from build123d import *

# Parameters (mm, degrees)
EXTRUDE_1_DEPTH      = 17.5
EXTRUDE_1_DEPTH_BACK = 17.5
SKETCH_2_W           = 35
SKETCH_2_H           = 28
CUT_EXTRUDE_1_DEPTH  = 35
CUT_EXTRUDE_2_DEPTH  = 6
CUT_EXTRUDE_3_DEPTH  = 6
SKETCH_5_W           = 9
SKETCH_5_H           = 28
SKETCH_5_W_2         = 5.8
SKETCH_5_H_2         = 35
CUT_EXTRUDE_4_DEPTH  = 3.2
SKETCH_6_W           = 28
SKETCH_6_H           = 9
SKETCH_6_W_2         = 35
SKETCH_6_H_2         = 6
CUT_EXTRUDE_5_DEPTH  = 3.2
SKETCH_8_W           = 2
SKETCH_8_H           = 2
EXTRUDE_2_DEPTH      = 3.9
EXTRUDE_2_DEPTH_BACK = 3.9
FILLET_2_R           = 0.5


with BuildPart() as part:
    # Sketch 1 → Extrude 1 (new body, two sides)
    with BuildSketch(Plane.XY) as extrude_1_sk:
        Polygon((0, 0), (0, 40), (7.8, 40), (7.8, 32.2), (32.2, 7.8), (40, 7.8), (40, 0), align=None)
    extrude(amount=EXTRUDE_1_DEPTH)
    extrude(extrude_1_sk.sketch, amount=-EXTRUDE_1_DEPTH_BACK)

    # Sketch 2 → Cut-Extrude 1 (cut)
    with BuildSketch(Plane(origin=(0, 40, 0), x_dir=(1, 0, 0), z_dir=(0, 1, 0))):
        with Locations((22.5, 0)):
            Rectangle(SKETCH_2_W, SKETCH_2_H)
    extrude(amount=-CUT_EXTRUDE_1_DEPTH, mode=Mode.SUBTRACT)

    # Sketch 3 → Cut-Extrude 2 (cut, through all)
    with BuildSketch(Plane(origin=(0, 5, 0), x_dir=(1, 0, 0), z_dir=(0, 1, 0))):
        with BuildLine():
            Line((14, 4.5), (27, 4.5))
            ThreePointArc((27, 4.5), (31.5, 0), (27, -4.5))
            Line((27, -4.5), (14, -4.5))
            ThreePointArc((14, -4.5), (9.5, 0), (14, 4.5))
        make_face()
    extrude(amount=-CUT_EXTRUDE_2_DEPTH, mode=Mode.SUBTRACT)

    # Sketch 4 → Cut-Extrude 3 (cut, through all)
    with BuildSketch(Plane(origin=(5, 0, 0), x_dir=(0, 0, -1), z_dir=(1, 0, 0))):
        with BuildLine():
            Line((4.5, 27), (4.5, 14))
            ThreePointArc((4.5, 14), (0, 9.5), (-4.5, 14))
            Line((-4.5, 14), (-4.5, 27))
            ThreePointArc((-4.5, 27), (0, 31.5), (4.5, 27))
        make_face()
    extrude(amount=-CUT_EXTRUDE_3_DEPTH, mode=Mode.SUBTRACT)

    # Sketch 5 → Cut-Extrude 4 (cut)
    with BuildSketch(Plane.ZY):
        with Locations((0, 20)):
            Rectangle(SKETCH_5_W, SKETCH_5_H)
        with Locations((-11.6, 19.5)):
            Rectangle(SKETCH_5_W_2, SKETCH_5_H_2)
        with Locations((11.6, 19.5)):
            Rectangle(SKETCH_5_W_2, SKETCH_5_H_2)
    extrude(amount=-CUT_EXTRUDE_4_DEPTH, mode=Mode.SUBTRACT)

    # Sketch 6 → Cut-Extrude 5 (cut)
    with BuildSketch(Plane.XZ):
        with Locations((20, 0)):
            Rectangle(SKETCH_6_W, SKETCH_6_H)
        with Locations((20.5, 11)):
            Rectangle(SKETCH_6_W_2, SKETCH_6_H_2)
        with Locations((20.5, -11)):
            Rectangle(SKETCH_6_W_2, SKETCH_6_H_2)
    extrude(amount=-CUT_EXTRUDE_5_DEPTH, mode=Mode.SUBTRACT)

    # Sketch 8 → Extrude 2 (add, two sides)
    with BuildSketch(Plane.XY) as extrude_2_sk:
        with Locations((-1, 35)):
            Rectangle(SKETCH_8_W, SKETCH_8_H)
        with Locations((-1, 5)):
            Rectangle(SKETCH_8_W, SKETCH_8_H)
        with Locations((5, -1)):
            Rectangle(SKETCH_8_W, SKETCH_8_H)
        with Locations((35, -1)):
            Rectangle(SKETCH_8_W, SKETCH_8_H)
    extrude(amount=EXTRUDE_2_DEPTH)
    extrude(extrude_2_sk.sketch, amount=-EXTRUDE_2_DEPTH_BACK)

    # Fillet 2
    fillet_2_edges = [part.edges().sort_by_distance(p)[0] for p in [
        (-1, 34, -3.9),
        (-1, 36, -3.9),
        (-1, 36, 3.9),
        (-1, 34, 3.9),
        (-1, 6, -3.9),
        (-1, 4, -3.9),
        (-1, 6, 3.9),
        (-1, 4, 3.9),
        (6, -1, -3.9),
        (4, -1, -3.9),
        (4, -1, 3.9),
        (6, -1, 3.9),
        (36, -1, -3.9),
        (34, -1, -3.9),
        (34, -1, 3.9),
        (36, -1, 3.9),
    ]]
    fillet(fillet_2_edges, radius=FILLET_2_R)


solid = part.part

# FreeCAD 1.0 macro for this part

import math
import FreeCAD as App
import Part
import Sketcher
from FreeCAD import Vector


def edges_at(feature, points):
    """Names of the edges that pass closest to the given points."""
    edges = feature.Shape.Edges
    near = lambda p: min(range(len(edges)), key=lambda i: edges[i].distToShape(Part.Vertex(*p))[0])
    return sorted({f"Edge{near(p) + 1}" for p in points})


def add_polygon(sketch, points):
    """Adds a closed chain of lines whose ends are joined by coincident constraints."""
    first, n = sketch.GeometryCount, len(points)
    for a, b in zip(points, points[1:] + points[:1]):
        sketch.addGeometry(Part.LineSegment(App.Vector(*a, 0), App.Vector(*b, 0)), False)
    for i in range(n):
        sketch.addConstraint(Sketcher.Constraint("Coincident", first + i, 2, first + (i + 1) % n, 1))

doc = App.newDocument("Part")
params = doc.addObject("Spreadsheet::Sheet", "Params")
for row, (alias, value) in enumerate([
    ("sketch1_width", "40 mm"),
    ("sketch1_width2", "7.8 mm"),
    ("pad1_length", "17.5 mm"),
    ("pad1_length2", "17.5 mm"),
    ("sketch2_width", "35 mm"),
    ("sketch2_height", "28 mm"),
    ("pocket1_length", "35 mm"),
    ("sketch3_radius", "4.5 mm"),
    ("sketch3_width", "13 mm"),
    ("sketch4_radius", "4.5 mm"),
    ("sketch4_width", "13 mm"),
    ("sketch5_width", "28 mm"),
    ("sketch5_width2", "35 mm"),
    ("sketch5_height", "9 mm"),
    ("sketch5_height2", "5.8 mm"),
    ("pocket4_length", "3.2 mm"),
    ("sketch6_width", "28 mm"),
    ("sketch6_width2", "35 mm"),
    ("sketch6_height", "9 mm"),
    ("sketch6_height2", "6 mm"),
    ("pocket5_length", "3.2 mm"),
    ("sketch7_width", "2 mm"),
    ("pad2_length", "3.9 mm"),
    ("pad2_length2", "3.9 mm"),
    ("fillet_radius", "0.5 mm"),
], start=1):
    params.set(f"A{row}", alias)
    params.set(f"B{row}", "=" + value)
    params.setAlias(f"B{row}", alias)

body = doc.addObject("PartDesign::Body", "Body")

sketch1 = body.newObject("Sketcher::SketchObject", "Sketch")
sketch1.AttachmentSupport = (doc.getObject("XY_Plane"), [""])
sketch1.MapMode = "FlatFace"
add_polygon(sketch1, [(0, 40), (0, 0), (40, 0), (40, 8), (32, 8), (8, 32), (8, 40)])
sketch1.addConstraint([
    Sketcher.Constraint("Vertical", 0),
    Sketcher.Constraint("Horizontal", 1),
    Sketcher.Constraint("Vertical", 2),
    Sketcher.Constraint("Horizontal", 3),
    Sketcher.Constraint("Vertical", 5),
    Sketcher.Constraint("Horizontal", 6),
    Sketcher.Constraint("Coincident", 0, 2, -1, 1),
    Sketcher.Constraint("Equal", 3, 6),
    Sketcher.Constraint("Equal", 1, 0),
    Sketcher.Constraint("Equal", 6, 2),
    Sketcher.Constraint("Equal", 2, 5),
    Sketcher.Constraint("DistanceX", 1, 1, 1, 2, 40.0),
    Sketcher.Constraint("DistanceX", 3, 2, 3, 1, 7.8),
])
sketch1.setExpression("Constraints[18]", "Params.sketch1_width")
sketch1.setExpression("Constraints[19]", "Params.sketch1_width2")
pad1 = body.newObject("PartDesign::Pad", "Pad")
pad1.Profile = sketch1
pad1.Type = "TwoLengths"
pad1.setExpression("Length", "Params.pad1_length")
pad1.setExpression("Length2", "Params.pad1_length2")

sketch2 = body.newObject("Sketcher::SketchObject", "Sketch001")
sketch2.AttachmentSupport = (doc.getObject("XZ_Plane"), [""])
sketch2.MapMode = "FlatFace"
sketch2.AttachmentOffset = App.Placement(Vector(0, 0, -40), App.Rotation())
add_polygon(sketch2, [(5, -14), (5, 14), (40, 14), (40, -14)])
sketch2.addConstraint([
    Sketcher.Constraint("Vertical", 0),
    Sketcher.Constraint("Horizontal", 1),
    Sketcher.Constraint("Vertical", 2),
    Sketcher.Constraint("Horizontal", 3),
    Sketcher.Constraint("DistanceX", 1, 1, 1, 2, 35.0),
    Sketcher.Constraint("DistanceY", 0, 1, 0, 2, 28.0),
    Sketcher.Constraint("DistanceX", -1, 1, 0, 2, 5.0),
    Sketcher.Constraint("DistanceY", -1, 1, 0, 2, 14.0),
])
sketch2.setExpression("Constraints[8]", "Params.sketch2_width")
sketch2.setExpression("Constraints[9]", "Params.sketch2_height")
pocket1 = body.newObject("PartDesign::Pocket", "Pocket")
pocket1.Profile = sketch2
pocket1.setExpression("Length", "Params.pocket1_length")
pocket1.Reversed = True

sketch3 = body.newObject("Sketcher::SketchObject", "Sketch002")
sketch3.AttachmentSupport = (doc.getObject("XZ_Plane"), [""])
sketch3.MapMode = "FlatFace"
sketch3.AttachmentOffset = App.Placement(Vector(0, 0, -5), App.Rotation())
sketch3.addGeometry([
    Part.LineSegment(Vector(27, -4.5, 0), Vector(14, -4.5, 0)),
    Part.ArcOfCircle(Part.Circle(Vector(14, 0, 0), Vector(0, 0, 1), 4.5), math.radians(90), math.radians(270)),
    Part.LineSegment(Vector(14, 4.5, 0), Vector(27, 4.5, 0)),
    Part.ArcOfCircle(Part.Circle(Vector(27, 0, 0), Vector(0, 0, 1), 4.5), math.radians(-90), math.radians(90)),
], False)
sketch3.addConstraint([
    Sketcher.Constraint("Tangent", 0, 2, 1, 2),
    Sketcher.Constraint("Tangent", 1, 1, 2, 1),
    Sketcher.Constraint("Tangent", 2, 2, 3, 2),
    Sketcher.Constraint("Tangent", 3, 1, 0, 1),
    Sketcher.Constraint("Horizontal", 0),
    Sketcher.Constraint("Horizontal", 2),
    Sketcher.Constraint("PointOnObject", 1, 3, -1),
    Sketcher.Constraint("Radius", 1, 4.5),
    Sketcher.Constraint("DistanceX", 0, 2, 0, 1, 13.0),
    Sketcher.Constraint("DistanceX", -1, 1, 1, 3, 14.0),
])
sketch3.setExpression("Constraints[7]", "Params.sketch3_radius")
sketch3.setExpression("Constraints[8]", "Params.sketch3_width")
pocket2 = body.newObject("PartDesign::Pocket", "Pocket001")
pocket2.Profile = sketch3
pocket2.Type = "ThroughAll"
pocket2.Reversed = True

sketch4 = body.newObject("Sketcher::SketchObject", "Sketch003")
sketch4.AttachmentSupport = (doc.getObject("YZ_Plane"), [""])
sketch4.MapMode = "FlatFace"
sketch4.AttachmentOffset = App.Placement(Vector(0, 0, 5), App.Rotation())
sketch4.addGeometry([
    Part.LineSegment(Vector(14, -4.5, 0), Vector(27, -4.5, 0)),
    Part.ArcOfCircle(Part.Circle(Vector(27, 0, 0), Vector(0, 0, 1), 4.5), math.radians(-90), math.radians(90)),
    Part.LineSegment(Vector(27, 4.5, 0), Vector(14, 4.5, 0)),
    Part.ArcOfCircle(Part.Circle(Vector(14, 0, 0), Vector(0, 0, 1), 4.5), math.radians(90), math.radians(270)),
], False)
sketch4.addConstraint([
    Sketcher.Constraint("Tangent", 0, 2, 1, 1),
    Sketcher.Constraint("Tangent", 1, 2, 2, 1),
    Sketcher.Constraint("Tangent", 2, 2, 3, 1),
    Sketcher.Constraint("Tangent", 3, 2, 0, 1),
    Sketcher.Constraint("Horizontal", 0),
    Sketcher.Constraint("Horizontal", 2),
    Sketcher.Constraint("PointOnObject", 1, 3, -1),
    Sketcher.Constraint("Radius", 1, 4.5),
    Sketcher.Constraint("DistanceX", 0, 1, 0, 2, 13.0),
    Sketcher.Constraint("DistanceX", -1, 1, 1, 3, 27.0),
])
sketch4.setExpression("Constraints[7]", "Params.sketch4_radius")
sketch4.setExpression("Constraints[8]", "Params.sketch4_width")
pocket3 = body.newObject("PartDesign::Pocket", "Pocket002")
pocket3.Profile = sketch4
pocket3.Type = "ThroughAll"

sketch5 = body.newObject("Sketcher::SketchObject", "Sketch004")
sketch5.AttachmentSupport = (doc.getObject("YZ_Plane"), [""])
sketch5.MapMode = "FlatFace"
add_polygon(sketch5, [(34, -4), (6, -4), (6, 4), (34, 4)])
add_polygon(sketch5, [(37, -14), (2, -14), (2, -9), (37, -9)])
add_polygon(sketch5, [(37, 9), (2, 9), (2, 14), (37, 14)])
sketch5.addConstraint([
    Sketcher.Constraint("Horizontal", 0),
    Sketcher.Constraint("Vertical", 1),
    Sketcher.Constraint("Horizontal", 2),
    Sketcher.Constraint("Vertical", 3),
    Sketcher.Constraint("Horizontal", 4),
    Sketcher.Constraint("Vertical", 5),
    Sketcher.Constraint("Horizontal", 6),
    Sketcher.Constraint("Vertical", 7),
    Sketcher.Constraint("Horizontal", 8),
    Sketcher.Constraint("Vertical", 9),
    Sketcher.Constraint("Horizontal", 10),
    Sketcher.Constraint("Vertical", 11),
    Sketcher.Constraint("Symmetric", 5, 2, 8, 2, -1),
    Sketcher.Constraint("Symmetric", 7, 2, 10, 2, -1),
    Sketcher.Constraint("DistanceX", 0, 2, 0, 1, 28.0),
    Sketcher.Constraint("DistanceX", 4, 2, 4, 1, 35.0),
    Sketcher.Constraint("DistanceY", 1, 1, 1, 2, 9.0),
    Sketcher.Constraint("DistanceY", 5, 1, 5, 2, 5.8),
    Sketcher.Constraint("DistanceX", -1, 1, 0, 2, 6.0),
    Sketcher.Constraint("DistanceX", -1, 1, 4, 2, 2.0),
    Sketcher.Constraint("DistanceY", 4, 2, 0, 2, 10.0),
    Sketcher.Constraint("DistanceY", 1, 2, 9, 2, 10.0),
])
sketch5.setExpression("Constraints[26]", "Params.sketch5_width")
sketch5.setExpression("Constraints[27]", "Params.sketch5_width2")
sketch5.setExpression("Constraints[28]", "Params.sketch5_height")
sketch5.setExpression("Constraints[29]", "Params.sketch5_height2")
pocket4 = body.newObject("PartDesign::Pocket", "Pocket003")
pocket4.Profile = sketch5
pocket4.setExpression("Length", "Params.pocket4_length")
pocket4.Reversed = True

sketch6 = body.newObject("Sketcher::SketchObject", "Sketch005")
sketch6.AttachmentSupport = (doc.getObject("XZ_Plane"), [""])
sketch6.MapMode = "FlatFace"
add_polygon(sketch6, [(6, 4), (6, -4), (34, -4), (34, 4)])
add_polygon(sketch6, [(3, 14), (3, 8), (38, 8), (38, 14)])
add_polygon(sketch6, [(3, -8), (3, -14), (38, -14), (38, -8)])
sketch6.addConstraint([
    Sketcher.Constraint("Vertical", 0),
    Sketcher.Constraint("Horizontal", 1),
    Sketcher.Constraint("Vertical", 2),
    Sketcher.Constraint("Horizontal", 3),
    Sketcher.Constraint("Vertical", 4),
    Sketcher.Constraint("Horizontal", 5),
    Sketcher.Constraint("Vertical", 6),
    Sketcher.Constraint("Horizontal", 7),
    Sketcher.Constraint("Vertical", 8),
    Sketcher.Constraint("Horizontal", 9),
    Sketcher.Constraint("Vertical", 10),
    Sketcher.Constraint("Horizontal", 11),
    Sketcher.Constraint("Symmetric", 7, 2, 8, 2, -1),
    Sketcher.Constraint("Symmetric", 5, 2, 10, 2, -1),
    Sketcher.Constraint("DistanceX", 1, 1, 1, 2, 28.0),
    Sketcher.Constraint("DistanceX", 5, 1, 5, 2, 35.0),
    Sketcher.Constraint("DistanceY", 0, 2, 0, 1, 9.0),
    Sketcher.Constraint("DistanceY", 4, 2, 4, 1, 6.0),
    Sketcher.Constraint("DistanceX", -1, 1, 0, 2, 6.0),
    Sketcher.Constraint("DistanceX", -1, 1, 4, 2, 3.0),
    Sketcher.Constraint("DistanceY", -1, 1, 4, 2, 8.0),
    Sketcher.Constraint("DistanceY", 0, 2, -1, 1, 4.5),
])
sketch6.setExpression("Constraints[26]", "Params.sketch6_width")
sketch6.setExpression("Constraints[27]", "Params.sketch6_width2")
sketch6.setExpression("Constraints[28]", "Params.sketch6_height")
sketch6.setExpression("Constraints[29]", "Params.sketch6_height2")
pocket5 = body.newObject("PartDesign::Pocket", "Pocket004")
pocket5.Profile = sketch6
pocket5.setExpression("Length", "Params.pocket5_length")

sketch7 = body.newObject("Sketcher::SketchObject", "Sketch006")
sketch7.AttachmentSupport = (doc.getObject("XY_Plane"), [""])
sketch7.MapMode = "FlatFace"
add_polygon(sketch7, [(-2, 36), (-2, 34), (0, 34), (0, 36)])
add_polygon(sketch7, [(-2, 6), (-2, 4), (0, 4), (0, 6)])
add_polygon(sketch7, [(4, 0), (4, -2), (6, -2), (6, 0)])
add_polygon(sketch7, [(34, 0), (34, -2), (36, -2), (36, 0)])
sketch7.addConstraint([
    Sketcher.Constraint("Vertical", 0),
    Sketcher.Constraint("Horizontal", 1),
    Sketcher.Constraint("Vertical", 2),
    Sketcher.Constraint("Horizontal", 3),
    Sketcher.Constraint("Vertical", 4),
    Sketcher.Constraint("Horizontal", 5),
    Sketcher.Constraint("Vertical", 6),
    Sketcher.Constraint("Horizontal", 7),
    Sketcher.Constraint("Vertical", 8),
    Sketcher.Constraint("Horizontal", 9),
    Sketcher.Constraint("Vertical", 10),
    Sketcher.Constraint("Horizontal", 11),
    Sketcher.Constraint("Vertical", 12),
    Sketcher.Constraint("Horizontal", 13),
    Sketcher.Constraint("Vertical", 14),
    Sketcher.Constraint("Horizontal", 15),
    Sketcher.Constraint("PointOnObject", 1, 2, -2),
    Sketcher.Constraint("PointOnObject", 5, 2, -2),
    Sketcher.Constraint("PointOnObject", 10, 2, -1),
    Sketcher.Constraint("PointOnObject", 14, 2, -1),
    Sketcher.Constraint("Horizontal", 9, 2, 12, 2),
    Sketcher.Constraint("Vertical", 3, 2, 4, 2),
    Sketcher.Constraint("Equal", 7, 9),
    Sketcher.Constraint("Equal", 11, 13),
    Sketcher.Constraint("Equal", 15, 0),
    Sketcher.Constraint("Equal", 2, 4),
    Sketcher.Constraint("Equal", 6, 8),
    Sketcher.Constraint("DistanceX", 1, 1, 1, 2, 2.0),
    Sketcher.Constraint("DistanceY", -1, 1, 0, 2, 34.0),
    Sketcher.Constraint("DistanceY", -1, 1, 4, 2, 4.0),
    Sketcher.Constraint("DistanceX", -1, 1, 8, 2, 4.0),
    Sketcher.Constraint("DistanceX", -1, 1, 12, 2, 34.0),
])
sketch7.setExpression("Constraints[43]", "Params.sketch7_width")
pad2 = body.newObject("PartDesign::Pad", "Pad001")
pad2.Profile = sketch7
pad2.Type = "TwoLengths"
pad2.setExpression("Length", "Params.pad2_length")
pad2.setExpression("Length2", "Params.pad2_length2")
doc.recompute()

fillet = body.newObject("PartDesign::Fillet", "Fillet")
fillet.Base = (pad2, edges_at(pad2, [
    (-1, 34, -3.9),
    (-1, 36, -3.9),
    (-1, 36, 3.9),
    (-1, 34, 3.9),
    (-1, 6, -3.9),
    (-1, 4, -3.9),
    (-1, 6, 3.9),
    (-1, 4, 3.9),
    (6, -1, -3.9),
    (4, -1, -3.9),
    (4, -1, 3.9),
    (6, -1, 3.9),
    (36, -1, -3.9),
    (34, -1, -3.9),
    (34, -1, 3.9),
    (36, -1, 3.9),
]))
fillet.setExpression("Radius", "Params.fillet_radius")

doc.recompute()
